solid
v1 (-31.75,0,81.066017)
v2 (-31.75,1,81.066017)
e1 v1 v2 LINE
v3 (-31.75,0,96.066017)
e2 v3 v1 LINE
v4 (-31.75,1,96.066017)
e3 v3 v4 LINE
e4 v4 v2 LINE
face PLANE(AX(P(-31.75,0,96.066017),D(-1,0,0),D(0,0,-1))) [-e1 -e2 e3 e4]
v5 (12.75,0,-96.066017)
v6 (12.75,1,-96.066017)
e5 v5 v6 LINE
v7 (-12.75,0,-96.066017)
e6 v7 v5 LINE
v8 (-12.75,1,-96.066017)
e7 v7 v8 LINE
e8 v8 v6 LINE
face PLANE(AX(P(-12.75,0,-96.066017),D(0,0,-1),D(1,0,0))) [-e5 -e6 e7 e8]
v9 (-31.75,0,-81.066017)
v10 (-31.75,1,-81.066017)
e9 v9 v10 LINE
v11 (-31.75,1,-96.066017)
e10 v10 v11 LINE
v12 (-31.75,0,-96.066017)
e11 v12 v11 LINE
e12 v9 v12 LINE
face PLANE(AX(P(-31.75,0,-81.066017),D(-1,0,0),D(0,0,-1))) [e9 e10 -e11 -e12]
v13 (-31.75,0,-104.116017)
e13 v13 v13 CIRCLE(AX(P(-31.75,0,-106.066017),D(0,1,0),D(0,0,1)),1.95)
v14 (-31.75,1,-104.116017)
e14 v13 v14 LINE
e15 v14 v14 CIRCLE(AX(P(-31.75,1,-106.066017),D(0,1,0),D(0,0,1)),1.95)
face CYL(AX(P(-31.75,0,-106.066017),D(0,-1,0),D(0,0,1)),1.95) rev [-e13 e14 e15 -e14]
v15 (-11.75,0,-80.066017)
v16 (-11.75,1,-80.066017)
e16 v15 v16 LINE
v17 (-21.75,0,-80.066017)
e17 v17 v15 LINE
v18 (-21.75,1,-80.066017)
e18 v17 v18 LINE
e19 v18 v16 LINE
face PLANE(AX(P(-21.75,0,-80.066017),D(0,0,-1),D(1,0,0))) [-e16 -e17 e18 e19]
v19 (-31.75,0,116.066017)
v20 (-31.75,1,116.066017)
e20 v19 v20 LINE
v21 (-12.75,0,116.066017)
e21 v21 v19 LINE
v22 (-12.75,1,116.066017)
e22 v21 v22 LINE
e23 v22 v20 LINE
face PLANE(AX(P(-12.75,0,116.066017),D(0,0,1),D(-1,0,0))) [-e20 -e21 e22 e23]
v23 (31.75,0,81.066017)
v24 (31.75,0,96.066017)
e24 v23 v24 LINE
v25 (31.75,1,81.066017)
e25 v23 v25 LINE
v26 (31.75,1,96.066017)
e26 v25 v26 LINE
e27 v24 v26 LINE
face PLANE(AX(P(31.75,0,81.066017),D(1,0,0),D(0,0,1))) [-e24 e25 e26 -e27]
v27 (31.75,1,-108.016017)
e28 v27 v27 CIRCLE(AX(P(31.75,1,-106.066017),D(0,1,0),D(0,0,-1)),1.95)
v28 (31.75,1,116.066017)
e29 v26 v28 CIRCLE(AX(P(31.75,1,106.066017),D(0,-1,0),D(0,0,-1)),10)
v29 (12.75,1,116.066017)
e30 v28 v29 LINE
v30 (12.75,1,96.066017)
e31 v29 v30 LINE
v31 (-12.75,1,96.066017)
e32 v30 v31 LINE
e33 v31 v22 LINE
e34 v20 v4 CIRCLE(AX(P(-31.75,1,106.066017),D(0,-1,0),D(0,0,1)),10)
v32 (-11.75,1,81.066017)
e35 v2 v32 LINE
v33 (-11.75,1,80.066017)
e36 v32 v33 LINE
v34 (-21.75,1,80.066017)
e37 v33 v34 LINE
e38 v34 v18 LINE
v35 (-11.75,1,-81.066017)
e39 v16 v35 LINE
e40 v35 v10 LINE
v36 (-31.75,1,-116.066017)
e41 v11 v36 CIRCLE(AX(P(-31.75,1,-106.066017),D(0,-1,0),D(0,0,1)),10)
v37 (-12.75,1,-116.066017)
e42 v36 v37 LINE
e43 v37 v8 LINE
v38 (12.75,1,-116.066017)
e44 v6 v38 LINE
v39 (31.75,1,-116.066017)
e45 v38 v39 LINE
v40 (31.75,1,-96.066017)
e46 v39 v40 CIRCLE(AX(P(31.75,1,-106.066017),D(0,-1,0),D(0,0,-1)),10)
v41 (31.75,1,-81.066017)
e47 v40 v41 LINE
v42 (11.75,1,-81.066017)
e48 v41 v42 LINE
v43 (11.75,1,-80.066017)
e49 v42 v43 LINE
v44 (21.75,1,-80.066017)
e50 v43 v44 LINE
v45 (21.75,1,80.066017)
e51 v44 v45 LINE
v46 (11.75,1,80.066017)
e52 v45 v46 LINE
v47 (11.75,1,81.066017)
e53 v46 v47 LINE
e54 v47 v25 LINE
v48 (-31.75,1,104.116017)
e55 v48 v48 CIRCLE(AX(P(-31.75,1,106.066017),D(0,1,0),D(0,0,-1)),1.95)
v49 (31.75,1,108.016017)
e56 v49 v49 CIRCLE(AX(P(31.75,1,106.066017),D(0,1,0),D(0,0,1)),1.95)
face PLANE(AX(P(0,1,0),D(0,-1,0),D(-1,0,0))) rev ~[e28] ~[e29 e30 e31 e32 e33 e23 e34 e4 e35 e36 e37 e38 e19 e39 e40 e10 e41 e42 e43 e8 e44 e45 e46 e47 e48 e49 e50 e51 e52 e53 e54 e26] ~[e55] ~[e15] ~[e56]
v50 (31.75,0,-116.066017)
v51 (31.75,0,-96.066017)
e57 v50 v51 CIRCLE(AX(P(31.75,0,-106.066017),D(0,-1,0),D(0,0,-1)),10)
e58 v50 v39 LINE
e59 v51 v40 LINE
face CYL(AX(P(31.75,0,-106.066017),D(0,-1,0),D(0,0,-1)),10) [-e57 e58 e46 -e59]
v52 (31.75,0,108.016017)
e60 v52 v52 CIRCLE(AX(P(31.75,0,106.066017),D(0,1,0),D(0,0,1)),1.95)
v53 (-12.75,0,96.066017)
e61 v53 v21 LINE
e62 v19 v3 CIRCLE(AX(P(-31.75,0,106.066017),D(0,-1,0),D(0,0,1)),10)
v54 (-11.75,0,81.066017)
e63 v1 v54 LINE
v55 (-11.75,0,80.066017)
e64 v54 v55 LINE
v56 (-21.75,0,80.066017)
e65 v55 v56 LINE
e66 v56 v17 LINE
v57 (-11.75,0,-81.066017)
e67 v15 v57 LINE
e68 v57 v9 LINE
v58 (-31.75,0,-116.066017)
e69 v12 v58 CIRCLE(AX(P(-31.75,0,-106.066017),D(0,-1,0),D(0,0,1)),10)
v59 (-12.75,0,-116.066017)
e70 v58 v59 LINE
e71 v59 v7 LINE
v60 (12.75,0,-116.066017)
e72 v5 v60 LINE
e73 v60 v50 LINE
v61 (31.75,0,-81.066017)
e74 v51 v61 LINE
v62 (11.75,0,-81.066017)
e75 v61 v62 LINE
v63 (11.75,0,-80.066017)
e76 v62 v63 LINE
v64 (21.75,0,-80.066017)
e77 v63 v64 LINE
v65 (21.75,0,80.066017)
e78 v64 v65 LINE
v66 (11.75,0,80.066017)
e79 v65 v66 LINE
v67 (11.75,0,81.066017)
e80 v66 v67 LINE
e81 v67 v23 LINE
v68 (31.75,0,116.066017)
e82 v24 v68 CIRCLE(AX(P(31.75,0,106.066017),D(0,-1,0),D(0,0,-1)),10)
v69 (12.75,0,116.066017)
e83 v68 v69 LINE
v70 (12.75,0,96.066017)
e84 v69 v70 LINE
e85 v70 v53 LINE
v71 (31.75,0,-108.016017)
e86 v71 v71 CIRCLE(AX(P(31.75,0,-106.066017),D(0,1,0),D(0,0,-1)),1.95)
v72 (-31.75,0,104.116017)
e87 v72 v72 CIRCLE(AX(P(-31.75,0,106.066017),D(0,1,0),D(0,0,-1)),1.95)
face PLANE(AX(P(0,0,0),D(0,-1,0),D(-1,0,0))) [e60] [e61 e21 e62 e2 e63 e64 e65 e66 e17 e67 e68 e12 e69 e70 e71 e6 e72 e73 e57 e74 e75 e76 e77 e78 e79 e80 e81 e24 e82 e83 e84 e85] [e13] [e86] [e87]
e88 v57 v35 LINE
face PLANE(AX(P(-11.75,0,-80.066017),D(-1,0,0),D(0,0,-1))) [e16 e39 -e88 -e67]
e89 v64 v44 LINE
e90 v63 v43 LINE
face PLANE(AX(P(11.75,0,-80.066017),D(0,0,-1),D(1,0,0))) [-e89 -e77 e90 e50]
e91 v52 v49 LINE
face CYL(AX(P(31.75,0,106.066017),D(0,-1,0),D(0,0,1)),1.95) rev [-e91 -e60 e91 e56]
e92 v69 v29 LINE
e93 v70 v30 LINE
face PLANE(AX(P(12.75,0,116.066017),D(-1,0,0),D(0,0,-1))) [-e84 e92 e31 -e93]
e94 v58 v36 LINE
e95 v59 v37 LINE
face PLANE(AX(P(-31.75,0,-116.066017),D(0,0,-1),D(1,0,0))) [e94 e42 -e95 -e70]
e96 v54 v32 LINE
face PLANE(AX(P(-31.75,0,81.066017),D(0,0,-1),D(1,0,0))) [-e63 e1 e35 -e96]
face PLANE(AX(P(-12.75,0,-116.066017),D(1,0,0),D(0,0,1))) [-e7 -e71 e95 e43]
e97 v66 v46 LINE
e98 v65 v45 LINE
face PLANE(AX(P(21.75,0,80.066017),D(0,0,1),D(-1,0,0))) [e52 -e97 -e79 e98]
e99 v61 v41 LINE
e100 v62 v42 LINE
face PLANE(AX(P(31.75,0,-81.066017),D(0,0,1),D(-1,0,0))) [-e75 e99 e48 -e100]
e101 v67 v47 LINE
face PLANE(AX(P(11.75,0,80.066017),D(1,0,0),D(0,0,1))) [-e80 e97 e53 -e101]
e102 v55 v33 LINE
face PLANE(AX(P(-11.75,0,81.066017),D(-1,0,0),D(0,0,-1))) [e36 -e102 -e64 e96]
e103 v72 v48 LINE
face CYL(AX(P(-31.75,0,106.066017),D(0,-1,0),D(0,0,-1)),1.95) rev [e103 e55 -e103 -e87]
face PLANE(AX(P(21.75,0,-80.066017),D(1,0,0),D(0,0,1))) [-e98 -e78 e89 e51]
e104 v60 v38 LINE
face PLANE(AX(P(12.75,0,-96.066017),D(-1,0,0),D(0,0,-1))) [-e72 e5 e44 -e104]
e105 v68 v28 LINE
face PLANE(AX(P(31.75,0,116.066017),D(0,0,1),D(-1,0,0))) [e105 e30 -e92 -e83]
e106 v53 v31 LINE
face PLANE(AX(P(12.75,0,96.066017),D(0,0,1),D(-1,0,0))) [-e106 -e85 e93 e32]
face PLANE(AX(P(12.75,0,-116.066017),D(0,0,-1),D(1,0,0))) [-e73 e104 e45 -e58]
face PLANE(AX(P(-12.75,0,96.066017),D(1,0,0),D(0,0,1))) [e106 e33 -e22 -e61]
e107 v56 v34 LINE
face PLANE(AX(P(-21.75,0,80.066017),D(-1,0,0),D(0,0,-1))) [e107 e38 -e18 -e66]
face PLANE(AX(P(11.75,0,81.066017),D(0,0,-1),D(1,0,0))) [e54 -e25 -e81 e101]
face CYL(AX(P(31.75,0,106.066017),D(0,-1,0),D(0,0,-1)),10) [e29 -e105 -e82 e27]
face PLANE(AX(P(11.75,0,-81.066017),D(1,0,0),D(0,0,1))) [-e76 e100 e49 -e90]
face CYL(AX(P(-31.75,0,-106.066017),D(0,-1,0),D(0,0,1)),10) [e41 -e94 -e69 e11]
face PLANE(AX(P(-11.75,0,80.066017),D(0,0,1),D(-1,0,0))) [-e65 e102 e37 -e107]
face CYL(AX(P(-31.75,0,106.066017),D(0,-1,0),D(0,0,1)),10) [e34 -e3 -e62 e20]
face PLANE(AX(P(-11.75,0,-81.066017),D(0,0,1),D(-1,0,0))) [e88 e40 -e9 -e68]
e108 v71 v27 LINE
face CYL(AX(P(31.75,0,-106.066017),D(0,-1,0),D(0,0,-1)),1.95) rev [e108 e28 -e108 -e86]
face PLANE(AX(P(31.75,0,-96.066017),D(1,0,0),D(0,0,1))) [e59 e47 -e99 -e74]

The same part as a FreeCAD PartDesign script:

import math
import FreeCAD as App
import Part
import Sketcher
from FreeCAD import Vector
Q = App.Units.Quantity

doc = App.newDocument("Part")
params = doc.addObject("Spreadsheet::Sheet", "Params")
for row, (alias, value) in enumerate([
    ("sketch1_radius", "10 mm"),
    ("sketch1_diameter", "3.9 mm"),
    ("sketch1_width", "19 mm"),
    ("sketch1_width2", "10 mm"),
    ("sketch1_height", "15 mm"),
    ("pad1_length", "1 mm"),
], start=1):
    params.set(f"A{row}", alias)
    params.set(f"B{row}", "=" + value)
    params.setAlias(f"B{row}", alias)

body = doc.addObject("PartDesign::Body", "Body")

sketch1 = body.newObject("Sketcher::SketchObject", "Sketch")
sketch1.AttachmentSupport = (doc.getObject("XZ_Plane"), [""])
sketch1.MapMode = "FlatFace"
sketch1.addGeometry([
    Part.LineSegment(Vector(-12.8, -116.1, 0), Vector(-31.8, -116.1, 0)),
    Part.ArcOfCircle(Part.Circle(Vector(-31.8, -106.1, 0), Vector(0, 0, 1), 10), math.radians(90), math.radians(270)),
    Part.LineSegment(Vector(-31.8, -96.1, 0), Vector(-31.8, -81.1, 0)),
    Part.LineSegment(Vector(-31.8, -81.1, 0), Vector(-11.8, -81.1, 0)),
    Part.LineSegment(Vector(-11.8, -81.1, 0), Vector(-11.8, -80.1, 0)),
    Part.LineSegment(Vector(-11.8, -80.1, 0), Vector(-21.8, -80.1, 0)),
    Part.LineSegment(Vector(-21.8, -80.1, 0), Vector(-21.8, 80.1, 0)),
    Part.LineSegment(Vector(-21.8, 80.1, 0), Vector(-11.8, 80.1, 0)),
    Part.LineSegment(Vector(-11.8, 80.1, 0), Vector(-11.8, 81.1, 0)),
    Part.LineSegment(Vector(-11.8, 81.1, 0), Vector(-31.8, 81.1, 0)),
    Part.LineSegment(Vector(-31.8, 81.1, 0), Vector(-31.8, 96.1, 0)),
    Part.ArcOfCircle(Part.Circle(Vector(-31.8, 106.1, 0), Vector(0, 0, 1), 10), math.radians(90), math.radians(270)),
    Part.LineSegment(Vector(-31.8, 116.1, 0), Vector(-12.8, 116.1, 0)),
    Part.LineSegment(Vector(-12.8, 116.1, 0), Vector(-12.8, 96.1, 0)),
    Part.LineSegment(Vector(-12.8, 96.1, 0), Vector(12.8, 96.1, 0)),
    Part.LineSegment(Vector(12.8, 96.1, 0), Vector(12.8, 116.1, 0)),
    Part.LineSegment(Vector(12.8, 116.1, 0), Vector(31.8, 116.1, 0)),
    Part.ArcOfCircle(Part.Circle(Vector(31.8, 106.1, 0), Vector(0, 0, 1), 10), math.radians(-90), math.radians(90)),
    Part.LineSegment(Vector(31.8, 96.1, 0), Vector(31.8, 81.1, 0)),
    Part.LineSegment(Vector(31.8, 81.1, 0), Vector(11.8, 81.1, 0)),
    Part.LineSegment(Vector(11.8, 81.1, 0), Vector(11.8, 80.1, 0)),
    Part.LineSegment(Vector(11.8, 80.1, 0), Vector(21.8, 80.1, 0)),
    Part.LineSegment(Vector(21.8, 80.1, 0), Vector(21.8, -80.1, 0)),
    Part.LineSegment(Vector(21.8, -80.1, 0), Vector(11.8, -80.1, 0)),
    Part.LineSegment(Vector(11.8, -80.1, 0), Vector(11.8, -81.1, 0)),
    Part.LineSegment(Vector(11.8, -81.1, 0), Vector(31.8, -81.1, 0)),
    Part.LineSegment(Vector(31.8, -81.1, 0), Vector(31.8, -96.1, 0)),
    Part.ArcOfCircle(Part.Circle(Vector(31.8, -106.1, 0), Vector(0, 0, 1), 10), math.radians(-90), math.radians(90)),
    Part.LineSegment(Vector(31.8, -116.1, 0), Vector(12.8, -116.1, 0)),
    Part.LineSegment(Vector(12.8, -116.1, 0), Vector(12.8, -96.1, 0)),
    Part.LineSegment(Vector(12.8, -96.1, 0), Vector(-12.8, -96.1, 0)),
    Part.LineSegment(Vector(-12.8, -96.1, 0), Vector(-12.8, -116.1, 0)),
    Part.Circle(Vector(31.8, 106.1, 0), Vector(0, 0, 1), 1.9),
    Part.Circle(Vector(-31.8, 106.1, 0), Vector(0, 0, 1), 1.9),
    Part.Circle(Vector(31.8, -106.1, 0), Vector(0, 0, 1), 1.9),
    Part.Circle(Vector(-31.8, -106.1, 0), Vector(0, 0, 1), 1.9),
], False)
sketch1.addConstraint([
    Sketcher.Constraint("Tangent", 0, 2, 1, 2),
    Sketcher.Constraint("Coincident", 1, 1, 2, 1),
    Sketcher.Constraint("Coincident", 2, 2, 3, 1),
    Sketcher.Constraint("Coincident", 3, 2, 4, 1),
    Sketcher.Constraint("Coincident", 4, 2, 5, 1),
    Sketcher.Constraint("Coincident", 5, 2, 6, 1),
    Sketcher.Constraint("Coincident", 6, 2, 7, 1),
    Sketcher.Constraint("Coincident", 7, 2, 8, 1),
    Sketcher.Constraint("Coincident", 8, 2, 9, 1),
    Sketcher.Constraint("Coincident", 9, 2, 10, 1),
    Sketcher.Constraint("Coincident", 10, 2, 11, 2),
    Sketcher.Constraint("Tangent", 11, 1, 12, 1),
    Sketcher.Constraint("Coincident", 12, 2, 13, 1),
    Sketcher.Constraint("Coincident", 13, 2, 14, 1),
    Sketcher.Constraint("Coincident", 14, 2, 15, 1),
    Sketcher.Constraint("Coincident", 15, 2, 16, 1),
    Sketcher.Constraint("Tangent", 16, 2, 17, 2),
    Sketcher.Constraint("Coincident", 17, 1, 18, 1),
    Sketcher.Constraint("Coincident", 18, 2, 19, 1),
    Sketcher.Constraint("Coincident", 19, 2, 20, 1),
    Sketcher.Constraint("Coincident", 20, 2, 21, 1),
    Sketcher.Constraint("Coincident", 21, 2, 22, 1),
    Sketcher.Constraint("Coincident", 22, 2, 23, 1),
    Sketcher.Constraint("Coincident", 23, 2, 24, 1),
    Sketcher.Constraint("Coincident", 24, 2, 25, 1),
    Sketcher.Constraint("Coincident", 25, 2, 26, 1),
    Sketcher.Constraint("Coincident", 26, 2, 27, 2),
    Sketcher.Constraint("Tangent", 27, 1, 28, 1),
    Sketcher.Constraint("Coincident", 28, 2, 29, 1),
    Sketcher.Constraint("Coincident", 29, 2, 30, 1),
    Sketcher.Constraint("Coincident", 30, 2, 31, 1),
    Sketcher.Constraint("Coincident", 31, 2, 0, 1),
    Sketcher.Constraint("Horizontal", 0),
    Sketcher.Constraint("Vertical", 2),
    Sketcher.Constraint("Horizontal", 3),
    Sketcher.Constraint("Vertical", 4),
    Sketcher.Constraint("Horizontal", 5),
    Sketcher.Constraint("Vertical", 6),
    Sketcher.Constraint("Horizontal", 7),
    Sketcher.Constraint("Vertical", 8),
    Sketcher.Constraint("Horizontal", 9),
    Sketcher.Constraint("Vertical", 10),
    Sketcher.Constraint("Horizontal", 12),
    Sketcher.Constraint("Vertical", 13),
    Sketcher.Constraint("Horizontal", 14),
    Sketcher.Constraint("Vertical", 15),
    Sketcher.Constraint("Horizontal", 16),
    Sketcher.Constraint("Vertical", 18),
    Sketcher.Constraint("Horizontal", 19),
    Sketcher.Constraint("Vertical", 20),
    Sketcher.Constraint("Horizontal", 21),
    Sketcher.Constraint("Vertical", 22),
    Sketcher.Constraint("Horizontal", 23),
    Sketcher.Constraint("Vertical", 24),
    Sketcher.Constraint("Horizontal", 25),
    Sketcher.Constraint("Vertical", 26),
    Sketcher.Constraint("Horizontal", 28),
    Sketcher.Constraint("Vertical", 29),
    Sketcher.Constraint("Horizontal", 30),
    Sketcher.Constraint("Vertical", 31),
    Sketcher.Constraint("Coincident", 32, 3, 17, 3),
    Sketcher.Constraint("Coincident", 33, 3, 11, 3),
    Sketcher.Constraint("Coincident", 34, 3, 27, 3),
    Sketcher.Constraint("Coincident", 35, 3, 1, 3),
    Sketcher.Constraint("Equal", 1, 11),
    Sketcher.Constraint("Equal", 11, 17),
    Sketcher.Constraint("Equal", 17, 27),
    Sketcher.Constraint("Equal", 32, 33),
    Sketcher.Constraint("Equal", 33, 34),
    Sketcher.Constraint("Equal", 34, 35),
    Sketcher.Constraint("Symmetric", 1, 3, 17, 3, -1, 1),
    Sketcher.Constraint("Symmetric", 11, 3, 27, 3, -1, 1),
    Sketcher.Constraint("Symmetric", 2, 2, 18, 2, -1, 1),
    Sketcher.Constraint("Symmetric", 4, 2, 20, 2, -1, 1),
    Sketcher.Constraint("Symmetric", 6, 2, 22, 2, -1, 1),
    Sketcher.Constraint("Symmetric", 8, 2, 24, 2, -1, 1),
    Sketcher.Constraint("Symmetric", 13, 2, 29, 2, -1, 1),
    Sketcher.Constraint("Symmetric", 11, 3, 17, 3, -2),
    Sketcher.Constraint("Symmetric", 9, 2, 18, 2, -2),
    Sketcher.Constraint("Symmetric", 7, 2, 20, 2, -2),
    Sketcher.Constraint("Horizontal", 10, 2, 13, 2),
    Sketcher.Constraint("Vertical", 0, 2, 1, 1),
    Sketcher.Constraint("Vertical", 18, 2, 25, 2),
    Sketcher.Constraint("Vertical", 15, 2, 28, 2),
    Sketcher.Constraint("Vertical", 13, 2, 30, 2),
    Sketcher.Constraint("Equal", 25, 13),
    Sketcher.Constraint("Radius", 1, Q("10 mm")),
    Sketcher.Constraint("Diameter", 32, Q("3.9 mm")),
    Sketcher.Constraint("DistanceX", 0, 2, 0, 1, Q("19 mm")),
    Sketcher.Constraint("DistanceX", 5, 2, 5, 1, Q("10 mm")),
    Sketcher.Constraint("DistanceY", 2, 1, 2, 2, Q("15 mm")),
    Sketcher.Constraint("DistanceY", 4, 1, 4, 2, Q("1 mm")),
    Sketcher.Constraint("DistanceX", 14, 1, 14, 2, Q("25.5 mm")),
    Sketcher.Constraint("DistanceY", 6, 1, 6, 2, Q("160.132034 mm")),
])
sketch1.setExpression("Constraints[86]", "Params.sketch1_radius")
sketch1.setExpression("Constraints[87]", "Params.sketch1_diameter")
sketch1.setExpression("Constraints[88]", "Params.sketch1_width")
sketch1.setExpression("Constraints[89]", "Params.sketch1_width2")
sketch1.setExpression("Constraints[90]", "Params.sketch1_height")
pad1 = body.newObject("PartDesign::Pad", "Pad")
pad1.Profile = sketch1
pad1.setExpression("Length", "Params.pad1_length")
pad1.Reversed = True

doc.recompute()
